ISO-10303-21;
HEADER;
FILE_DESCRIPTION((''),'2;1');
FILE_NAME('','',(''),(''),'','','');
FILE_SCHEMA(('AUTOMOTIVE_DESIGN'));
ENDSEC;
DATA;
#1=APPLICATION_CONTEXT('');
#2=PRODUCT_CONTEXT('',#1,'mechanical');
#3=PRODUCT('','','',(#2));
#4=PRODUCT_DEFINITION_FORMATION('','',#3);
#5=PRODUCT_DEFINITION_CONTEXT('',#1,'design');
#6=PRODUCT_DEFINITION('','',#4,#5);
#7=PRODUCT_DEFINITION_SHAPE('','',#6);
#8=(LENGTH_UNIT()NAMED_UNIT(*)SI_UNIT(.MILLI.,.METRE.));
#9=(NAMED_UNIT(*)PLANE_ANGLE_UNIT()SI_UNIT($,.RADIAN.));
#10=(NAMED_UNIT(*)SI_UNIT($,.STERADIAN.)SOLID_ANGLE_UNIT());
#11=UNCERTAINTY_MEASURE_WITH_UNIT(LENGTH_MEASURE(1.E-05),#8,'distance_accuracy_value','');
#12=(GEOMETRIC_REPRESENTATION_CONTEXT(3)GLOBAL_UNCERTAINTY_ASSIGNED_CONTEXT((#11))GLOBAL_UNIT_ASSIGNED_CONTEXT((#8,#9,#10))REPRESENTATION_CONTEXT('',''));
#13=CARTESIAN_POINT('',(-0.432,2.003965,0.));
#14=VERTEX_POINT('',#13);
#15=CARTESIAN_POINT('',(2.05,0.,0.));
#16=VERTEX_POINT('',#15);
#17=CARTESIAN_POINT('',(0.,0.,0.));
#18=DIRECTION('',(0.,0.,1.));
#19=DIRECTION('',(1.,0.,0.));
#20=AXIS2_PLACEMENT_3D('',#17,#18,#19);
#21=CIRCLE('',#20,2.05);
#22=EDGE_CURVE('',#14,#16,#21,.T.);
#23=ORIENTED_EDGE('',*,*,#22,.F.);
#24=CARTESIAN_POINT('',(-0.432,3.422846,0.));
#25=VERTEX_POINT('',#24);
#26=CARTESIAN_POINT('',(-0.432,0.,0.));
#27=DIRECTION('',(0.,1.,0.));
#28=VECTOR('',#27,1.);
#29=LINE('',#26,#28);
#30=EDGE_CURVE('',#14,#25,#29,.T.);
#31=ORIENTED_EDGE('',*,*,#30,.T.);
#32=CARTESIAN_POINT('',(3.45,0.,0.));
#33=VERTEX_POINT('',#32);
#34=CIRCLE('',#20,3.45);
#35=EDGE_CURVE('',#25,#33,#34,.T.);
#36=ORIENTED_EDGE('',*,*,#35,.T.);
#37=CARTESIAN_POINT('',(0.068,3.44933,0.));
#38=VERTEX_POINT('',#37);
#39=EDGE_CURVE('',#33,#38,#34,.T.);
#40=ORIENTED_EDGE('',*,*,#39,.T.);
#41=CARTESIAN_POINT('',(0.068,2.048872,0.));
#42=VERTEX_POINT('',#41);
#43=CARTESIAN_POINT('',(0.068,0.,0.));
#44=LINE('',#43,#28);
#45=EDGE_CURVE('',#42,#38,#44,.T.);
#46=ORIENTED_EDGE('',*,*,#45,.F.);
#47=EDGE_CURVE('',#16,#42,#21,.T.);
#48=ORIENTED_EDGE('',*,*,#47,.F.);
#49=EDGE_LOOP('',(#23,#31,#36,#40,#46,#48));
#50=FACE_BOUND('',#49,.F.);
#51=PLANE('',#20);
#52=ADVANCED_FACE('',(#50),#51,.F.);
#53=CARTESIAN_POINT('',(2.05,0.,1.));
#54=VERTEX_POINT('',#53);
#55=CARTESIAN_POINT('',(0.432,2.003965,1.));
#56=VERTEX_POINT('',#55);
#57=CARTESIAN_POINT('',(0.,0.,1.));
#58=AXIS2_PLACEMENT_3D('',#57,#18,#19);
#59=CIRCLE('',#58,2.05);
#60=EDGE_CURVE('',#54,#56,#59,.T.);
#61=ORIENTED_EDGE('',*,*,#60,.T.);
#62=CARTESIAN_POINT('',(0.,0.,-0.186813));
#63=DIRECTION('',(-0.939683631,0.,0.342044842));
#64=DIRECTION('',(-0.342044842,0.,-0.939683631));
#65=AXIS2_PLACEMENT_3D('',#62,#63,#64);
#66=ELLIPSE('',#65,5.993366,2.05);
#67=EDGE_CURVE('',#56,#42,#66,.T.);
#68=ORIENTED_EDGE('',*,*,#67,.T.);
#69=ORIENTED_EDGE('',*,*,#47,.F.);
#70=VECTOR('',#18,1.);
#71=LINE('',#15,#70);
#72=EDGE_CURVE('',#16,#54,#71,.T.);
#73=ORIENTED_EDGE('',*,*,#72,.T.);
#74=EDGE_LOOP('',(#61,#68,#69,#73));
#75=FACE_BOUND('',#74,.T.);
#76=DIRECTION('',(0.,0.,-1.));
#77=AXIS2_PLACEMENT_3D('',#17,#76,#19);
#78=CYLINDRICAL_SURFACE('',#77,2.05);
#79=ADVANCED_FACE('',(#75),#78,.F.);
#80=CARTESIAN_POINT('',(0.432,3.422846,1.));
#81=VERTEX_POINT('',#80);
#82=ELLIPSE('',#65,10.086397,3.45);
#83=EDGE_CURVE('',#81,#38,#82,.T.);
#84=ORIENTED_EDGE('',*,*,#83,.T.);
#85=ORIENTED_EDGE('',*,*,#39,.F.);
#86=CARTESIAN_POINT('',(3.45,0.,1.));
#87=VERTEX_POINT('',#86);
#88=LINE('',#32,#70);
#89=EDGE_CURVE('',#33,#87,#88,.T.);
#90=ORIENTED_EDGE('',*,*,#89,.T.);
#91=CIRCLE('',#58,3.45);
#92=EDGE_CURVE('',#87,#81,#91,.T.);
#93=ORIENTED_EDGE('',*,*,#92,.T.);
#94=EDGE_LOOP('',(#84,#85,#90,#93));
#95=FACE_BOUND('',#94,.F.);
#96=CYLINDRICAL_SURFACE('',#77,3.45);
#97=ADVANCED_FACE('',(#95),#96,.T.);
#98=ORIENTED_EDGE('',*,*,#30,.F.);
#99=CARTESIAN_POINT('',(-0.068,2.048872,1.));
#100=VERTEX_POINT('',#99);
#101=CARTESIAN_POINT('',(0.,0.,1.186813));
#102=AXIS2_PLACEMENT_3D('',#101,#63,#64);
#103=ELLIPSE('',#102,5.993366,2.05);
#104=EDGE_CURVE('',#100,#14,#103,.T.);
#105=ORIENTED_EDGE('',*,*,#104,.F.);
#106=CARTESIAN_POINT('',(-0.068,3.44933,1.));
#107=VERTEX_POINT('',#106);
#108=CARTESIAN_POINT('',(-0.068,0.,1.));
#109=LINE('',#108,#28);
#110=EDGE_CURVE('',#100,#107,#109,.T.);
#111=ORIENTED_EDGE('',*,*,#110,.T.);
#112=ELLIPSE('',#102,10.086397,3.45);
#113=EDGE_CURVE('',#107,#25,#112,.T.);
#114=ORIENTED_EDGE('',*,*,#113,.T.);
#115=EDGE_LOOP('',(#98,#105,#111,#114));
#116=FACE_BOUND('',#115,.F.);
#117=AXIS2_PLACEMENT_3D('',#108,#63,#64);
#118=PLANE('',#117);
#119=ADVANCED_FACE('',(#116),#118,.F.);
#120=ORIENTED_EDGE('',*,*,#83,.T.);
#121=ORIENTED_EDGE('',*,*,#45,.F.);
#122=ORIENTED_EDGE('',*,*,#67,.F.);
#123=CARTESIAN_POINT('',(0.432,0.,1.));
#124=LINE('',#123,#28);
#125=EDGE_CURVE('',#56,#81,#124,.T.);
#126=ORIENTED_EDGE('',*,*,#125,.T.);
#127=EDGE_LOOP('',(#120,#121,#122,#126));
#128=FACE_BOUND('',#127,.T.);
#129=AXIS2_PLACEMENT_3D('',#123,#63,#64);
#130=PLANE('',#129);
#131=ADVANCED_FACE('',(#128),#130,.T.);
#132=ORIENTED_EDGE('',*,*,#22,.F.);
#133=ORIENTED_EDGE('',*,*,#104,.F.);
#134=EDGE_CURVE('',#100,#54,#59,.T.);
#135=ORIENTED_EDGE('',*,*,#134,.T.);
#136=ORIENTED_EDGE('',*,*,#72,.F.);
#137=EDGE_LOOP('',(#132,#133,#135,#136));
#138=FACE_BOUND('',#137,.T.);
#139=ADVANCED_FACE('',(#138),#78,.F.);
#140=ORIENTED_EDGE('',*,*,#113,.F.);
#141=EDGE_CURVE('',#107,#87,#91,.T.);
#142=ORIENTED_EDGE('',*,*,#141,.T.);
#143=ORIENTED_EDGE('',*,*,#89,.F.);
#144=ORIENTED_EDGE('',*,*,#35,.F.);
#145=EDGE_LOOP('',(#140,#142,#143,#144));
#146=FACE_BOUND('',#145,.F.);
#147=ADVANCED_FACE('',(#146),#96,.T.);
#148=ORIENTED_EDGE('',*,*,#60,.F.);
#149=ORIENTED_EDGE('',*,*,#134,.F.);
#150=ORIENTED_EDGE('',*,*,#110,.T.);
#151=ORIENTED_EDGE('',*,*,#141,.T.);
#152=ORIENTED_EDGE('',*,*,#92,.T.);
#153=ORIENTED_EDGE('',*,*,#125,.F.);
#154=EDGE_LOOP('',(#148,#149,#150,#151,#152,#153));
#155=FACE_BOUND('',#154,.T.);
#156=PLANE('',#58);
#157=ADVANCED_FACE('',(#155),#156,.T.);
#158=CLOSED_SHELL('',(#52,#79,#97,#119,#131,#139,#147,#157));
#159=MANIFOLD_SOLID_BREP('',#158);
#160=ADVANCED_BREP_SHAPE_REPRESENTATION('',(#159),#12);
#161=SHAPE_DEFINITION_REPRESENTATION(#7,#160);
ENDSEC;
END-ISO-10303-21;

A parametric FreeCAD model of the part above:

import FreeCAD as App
import Part
import Sketcher

V = App.Vector


def add_polygon(sketch, points):
    """Adds a closed chain of lines whose ends are joined by coincident constraints."""
    first, n = sketch.GeometryCount, len(points)
    for a, b in zip(points, points[1:] + points[:1]):
        sketch.addGeometry(Part.LineSegment(App.Vector(*a, 0), App.Vector(*b, 0)), False)
    for i in range(n):
        sketch.addConstraint(Sketcher.Constraint("Coincident", first + i, 2, first + (i + 1) % n, 1))

doc = App.newDocument("Part")
body = doc.addObject("PartDesign::Body", "Body")

# Sketch on XY plane
sketch1 = body.newObject("Sketcher::SketchObject", "Sketch")
sketch1.AttachmentSupport = (doc.getObject("XY_Plane"), [""])
sketch1.MapMode = "FlatFace"
sketch1.addGeometry([
    Part.Circle(V(0, 0, 0), V(0, 0, 1), 3.45),
    Part.Circle(V(0, 0, 0), V(0, 0, 1), 2.05),
], False)
sketch1.addConstraint([
    Sketcher.Constraint("Coincident", 0, 3, -1, 1),
    Sketcher.Constraint("Coincident", 1, 3, -1, 1),
    Sketcher.Constraint("Diameter", 0, 6.9),
    Sketcher.Constraint("Diameter", 1, 4.1),
])
pad1 = body.newObject("PartDesign::Pad", "Pad")
pad1.Profile = sketch1
pad1.Length = 1

# Sketch on XZ plane
sketch2 = body.newObject("Sketcher::SketchObject", "Sketch001")
sketch2.AttachmentSupport = (doc.getObject("XZ_Plane"), [""])
sketch2.MapMode = "FlatFace"
add_polygon(sketch2, [(-0.068, 1), (0.432, 1), (0.068, 0), (-0.432, 0)])  # lines 0-3
sketch2.addConstraint([
    Sketcher.Constraint("Horizontal", 0),
    Sketcher.Constraint("Horizontal", 2),
    Sketcher.Constraint("PointOnObject", 1, 2, -1),
    Sketcher.Constraint("Parallel", 1, 3),
    Sketcher.Constraint("DistanceX", 0, 1, 0, 2, 0.5),
    Sketcher.Constraint("DistanceY", -1, 1, 0, 2, 1.0),
    Sketcher.Constraint("DistanceX", -1, 1, 0, 2, 0.432),
    Sketcher.Constraint("DistanceX", -1, 1, 1, 2, 0.068),
])
pocket1 = body.newObject("PartDesign::Pocket", "Pocket")
pocket1.Profile = sketch2
pocket1.Type = "ThroughAll"

doc.recompute()
